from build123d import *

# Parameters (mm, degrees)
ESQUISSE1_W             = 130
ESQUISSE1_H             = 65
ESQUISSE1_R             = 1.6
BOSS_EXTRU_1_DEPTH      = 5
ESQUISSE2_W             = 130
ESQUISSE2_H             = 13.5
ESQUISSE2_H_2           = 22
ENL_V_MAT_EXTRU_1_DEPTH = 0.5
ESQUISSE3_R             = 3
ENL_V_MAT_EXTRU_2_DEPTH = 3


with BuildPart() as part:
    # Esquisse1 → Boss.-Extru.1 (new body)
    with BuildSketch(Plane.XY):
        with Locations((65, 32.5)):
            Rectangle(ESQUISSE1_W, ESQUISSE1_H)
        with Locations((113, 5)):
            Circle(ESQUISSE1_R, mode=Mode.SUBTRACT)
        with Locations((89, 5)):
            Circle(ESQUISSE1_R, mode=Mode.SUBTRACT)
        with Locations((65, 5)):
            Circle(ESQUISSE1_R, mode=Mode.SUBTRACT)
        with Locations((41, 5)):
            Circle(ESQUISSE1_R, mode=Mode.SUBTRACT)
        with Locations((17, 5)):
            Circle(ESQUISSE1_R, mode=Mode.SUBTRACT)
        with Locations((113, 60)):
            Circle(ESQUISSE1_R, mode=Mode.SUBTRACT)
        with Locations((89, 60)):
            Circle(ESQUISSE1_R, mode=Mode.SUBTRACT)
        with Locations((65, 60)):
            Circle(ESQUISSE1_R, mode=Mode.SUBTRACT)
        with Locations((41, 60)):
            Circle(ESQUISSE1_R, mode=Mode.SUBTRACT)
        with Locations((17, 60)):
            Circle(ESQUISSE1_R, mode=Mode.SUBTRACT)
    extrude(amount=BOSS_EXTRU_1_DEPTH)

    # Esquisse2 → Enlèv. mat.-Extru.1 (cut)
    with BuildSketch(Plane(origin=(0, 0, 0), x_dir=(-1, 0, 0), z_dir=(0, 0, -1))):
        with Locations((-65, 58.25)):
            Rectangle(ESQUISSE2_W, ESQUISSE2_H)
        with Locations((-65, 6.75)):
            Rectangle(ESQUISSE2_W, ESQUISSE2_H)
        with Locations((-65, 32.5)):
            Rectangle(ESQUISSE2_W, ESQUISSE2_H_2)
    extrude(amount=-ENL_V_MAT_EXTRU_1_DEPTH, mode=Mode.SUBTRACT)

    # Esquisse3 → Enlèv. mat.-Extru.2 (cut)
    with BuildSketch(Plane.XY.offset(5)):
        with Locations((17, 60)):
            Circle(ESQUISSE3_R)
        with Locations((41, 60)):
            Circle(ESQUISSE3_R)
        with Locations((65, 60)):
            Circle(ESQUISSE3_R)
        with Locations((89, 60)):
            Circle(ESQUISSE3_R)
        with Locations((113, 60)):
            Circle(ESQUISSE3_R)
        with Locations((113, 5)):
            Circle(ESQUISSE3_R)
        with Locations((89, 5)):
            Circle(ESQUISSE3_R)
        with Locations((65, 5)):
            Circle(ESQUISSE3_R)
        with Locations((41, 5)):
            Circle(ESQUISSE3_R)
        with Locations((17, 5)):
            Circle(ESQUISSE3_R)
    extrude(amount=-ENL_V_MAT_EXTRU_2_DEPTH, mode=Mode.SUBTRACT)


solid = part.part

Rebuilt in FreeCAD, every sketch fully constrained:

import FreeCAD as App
import Part
import Sketcher
Q = App.Units.Quantity


def add_polygon(sketch, points):
    """Adds a closed chain of lines whose ends are joined by coincident constraints."""
    first, n = sketch.GeometryCount, len(points)
    for a, b in zip(points, points[1:] + points[:1]):
        sketch.addGeometry(Part.LineSegment(App.Vector(*a, 0), App.Vector(*b, 0)), False)
    for i in range(n):
        sketch.addConstraint(Sketcher.Constraint("Coincident", first + i, 2, first + (i + 1) % n, 1))

doc = App.newDocument("Part")
body = doc.addObject("PartDesign::Body", "Body")

# Sketch on XY plane
sketch1 = body.newObject("Sketcher::SketchObject", "Sketch")
sketch1.AttachmentSupport = (doc.getObject("XY_Plane"), [""])
sketch1.MapMode = "FlatFace"
add_polygon(sketch1, [(0, 65), (0, 0), (130, 0), (130, 65)])  # lines 0-3
sketch1.addGeometry(Part.Circle(App.Vector(17, 5, 0), App.Vector(0, 0, 1), 1.6), False)  # 4
sketch1.addGeometry(Part.Circle(App.Vector(41, 5, 0), App.Vector(0, 0, 1), 1.6), False)  # 5
sketch1.addGeometry(Part.Circle(App.Vector(65, 5, 0), App.Vector(0, 0, 1), 1.6), False)  # 6
sketch1.addGeometry(Part.Circle(App.Vector(89, 5, 0), App.Vector(0, 0, 1), 1.6), False)  # 7
sketch1.addGeometry(Part.Circle(App.Vector(113, 5, 0), App.Vector(0, 0, 1), 1.6), False)  # 8
sketch1.addGeometry(Part.Circle(App.Vector(17, 60, 0), App.Vector(0, 0, 1), 1.6), False)  # 9
sketch1.addGeometry(Part.Circle(App.Vector(41, 60, 0), App.Vector(0, 0, 1), 1.6), False)  # 10
sketch1.addGeometry(Part.Circle(App.Vector(65, 60, 0), App.Vector(0, 0, 1), 1.6), False)  # 11
sketch1.addGeometry(Part.Circle(App.Vector(89, 60, 0), App.Vector(0, 0, 1), 1.6), False)  # 12
sketch1.addGeometry(Part.Circle(App.Vector(113, 60, 0), App.Vector(0, 0, 1), 1.6), False)  # 13
sketch1.addConstraint(Sketcher.Constraint("Vertical", 0))
sketch1.addConstraint(Sketcher.Constraint("Horizontal", 1))
sketch1.addConstraint(Sketcher.Constraint("Vertical", 2))
sketch1.addConstraint(Sketcher.Constraint("Horizontal", 3))
sketch1.addConstraint(Sketcher.Constraint("Coincident", 0, 2, -1, 1))
sketch1.addConstraint(Sketcher.Constraint("Equal", 4, 5))
sketch1.addConstraint(Sketcher.Constraint("Equal", 5, 6))
sketch1.addConstraint(Sketcher.Constraint("Equal", 6, 7))
sketch1.addConstraint(Sketcher.Constraint("Equal", 7, 8))
sketch1.addConstraint(Sketcher.Constraint("Equal", 8, 9))
sketch1.addConstraint(Sketcher.Constraint("Equal", 9, 10))
sketch1.addConstraint(Sketcher.Constraint("Equal", 10, 11))
sketch1.addConstraint(Sketcher.Constraint("Equal", 11, 12))
sketch1.addConstraint(Sketcher.Constraint("Equal", 12, 13))
sketch1.addConstraint(Sketcher.Constraint("Horizontal", 4, 3, 5, 3))
sketch1.addConstraint(Sketcher.Constraint("Horizontal", 5, 3, 6, 3))
sketch1.addConstraint(Sketcher.Constraint("Horizontal", 6, 3, 7, 3))
sketch1.addConstraint(Sketcher.Constraint("Horizontal", 7, 3, 8, 3))
sketch1.addConstraint(Sketcher.Constraint("Horizontal", 9, 3, 10, 3))
sketch1.addConstraint(Sketcher.Constraint("Horizontal", 10, 3, 11, 3))
sketch1.addConstraint(Sketcher.Constraint("Horizontal", 11, 3, 12, 3))
sketch1.addConstraint(Sketcher.Constraint("Horizontal", 12, 3, 13, 3))
sketch1.addConstraint(Sketcher.Constraint("Vertical", 4, 3, 9, 3))
sketch1.addConstraint(Sketcher.Constraint("Vertical", 5, 3, 10, 3))
sketch1.addConstraint(Sketcher.Constraint("Vertical", 6, 3, 11, 3))
sketch1.addConstraint(Sketcher.Constraint("Vertical", 7, 3, 12, 3))
sketch1.addConstraint(Sketcher.Constraint("Vertical", 8, 3, 13, 3))
sketch1.addConstraint(Sketcher.Constraint("Diameter", 4, Q("3.2 mm")))
sketch1.addConstraint(Sketcher.Constraint("DistanceX", 1, 1, 1, 2, Q("130 mm")))
sketch1.addConstraint(Sketcher.Constraint("DistanceY", 0, 2, 0, 1, Q("65 mm")))
sketch1.addConstraint(Sketcher.Constraint("DistanceX", -1, 1, 4, 3, Q("17 mm")))
sketch1.addConstraint(Sketcher.Constraint("DistanceY", -1, 1, 4, 3, Q("5 mm")))
sketch1.addConstraint(Sketcher.Constraint("DistanceX", -1, 1, 5, 3, Q("41 mm")))
sketch1.addConstraint(Sketcher.Constraint("DistanceX", -1, 1, 6, 3, Q("65 mm")))
sketch1.addConstraint(Sketcher.Constraint("DistanceX", -1, 1, 7, 3, Q("89 mm")))
sketch1.addConstraint(Sketcher.Constraint("DistanceX", -1, 1, 8, 3, Q("113 mm")))
sketch1.addConstraint(Sketcher.Constraint("DistanceY", -1, 1, 9, 3, Q("60 mm")))
pad1 = body.newObject("PartDesign::Pad", "Pad")
pad1.Profile = sketch1
pad1.Length = 5

# Sketch on XY plane
sketch2 = body.newObject("Sketcher::SketchObject", "Sketch001")
sketch2.AttachmentSupport = (doc.getObject("XY_Plane"), [""])
sketch2.MapMode = "FlatFace"
add_polygon(sketch2, [(130, 65), (130, 52), (0, 52), (0, 65)])  # lines 0-3
add_polygon(sketch2, [(130, 14), (130, 0), (0, 0), (0, 14)])  # lines 4-7
add_polygon(sketch2, [(130, 44), (130, 22), (0, 22), (0, 44)])  # lines 8-11
sketch2.addConstraint(Sketcher.Constraint("Vertical", 0))
sketch2.addConstraint(Sketcher.Constraint("Horizontal", 1))
sketch2.addConstraint(Sketcher.Constraint("Vertical", 2))
sketch2.addConstraint(Sketcher.Constraint("Horizontal", 3))
sketch2.addConstraint(Sketcher.Constraint("Vertical", 4))
sketch2.addConstraint(Sketcher.Constraint("Horizontal", 5))
sketch2.addConstraint(Sketcher.Constraint("Vertical", 6))
sketch2.addConstraint(Sketcher.Constraint("Horizontal", 7))
sketch2.addConstraint(Sketcher.Constraint("Vertical", 8))
sketch2.addConstraint(Sketcher.Constraint("Horizontal", 9))
sketch2.addConstraint(Sketcher.Constraint("Vertical", 10))
sketch2.addConstraint(Sketcher.Constraint("Horizontal", 11))
sketch2.addConstraint(Sketcher.Constraint("Coincident", 5, 2, -1, 1))
sketch2.addConstraint(Sketcher.Constraint("PointOnObject", 1, 2, -2))
sketch2.addConstraint(Sketcher.Constraint("PointOnObject", 9, 2, -2))
sketch2.addConstraint(Sketcher.Constraint("Vertical", 3, 2, 4, 2))
sketch2.addConstraint(Sketcher.Constraint("Vertical", 7, 2, 8, 2))
sketch2.addConstraint(Sketcher.Constraint("Equal", 2, 4))
sketch2.addConstraint(Sketcher.Constraint("DistanceX", 1, 2, 1, 1, Q("130 mm")))
sketch2.addConstraint(Sketcher.Constraint("DistanceY", 8, 2, 8, 1, Q("22 mm")))
sketch2.addConstraint(Sketcher.Constraint("DistanceY", 0, 2, 0, 1, Q("13.5 mm")))
sketch2.addConstraint(Sketcher.Constraint("DistanceY", -1, 1, 2, 2, Q("65 mm")))
sketch2.addConstraint(Sketcher.Constraint("DistanceY", 7, 2, 8, 2, Q("8 mm")))
pocket1 = body.newObject("PartDesign::Pocket", "Pocket")
pocket1.Profile = sketch2
pocket1.Length = 0.5
pocket1.Reversed = True

# Sketch on XY plane
sketch3 = body.newObject("Sketcher::SketchObject", "Sketch002")
sketch3.AttachmentSupport = (doc.getObject("XY_Plane"), [""])
sketch3.MapMode = "FlatFace"
sketch3.AttachmentOffset = App.Placement(App.Vector(0, 0, 5), App.Rotation())
sketch3.addGeometry(Part.Circle(App.Vector(17, 60, 0), App.Vector(0, 0, 1), 3), False)
sketch3.addGeometry(Part.Circle(App.Vector(41, 60, 0), App.Vector(0, 0, 1), 3), False)
sketch3.addGeometry(Part.Circle(App.Vector(65, 60, 0), App.Vector(0, 0, 1), 3), False)
sketch3.addGeometry(Part.Circle(App.Vector(89, 60, 0), App.Vector(0, 0, 1), 3), False)
sketch3.addGeometry(Part.Circle(App.Vector(113, 60, 0), App.Vector(0, 0, 1), 3), False)
sketch3.addGeometry(Part.Circle(App.Vector(113, 5, 0), App.Vector(0, 0, 1), 3), False)
sketch3.addGeometry(Part.Circle(App.Vector(89, 5, 0), App.Vector(0, 0, 1), 3), False)
sketch3.addGeometry(Part.Circle(App.Vector(65, 5, 0), App.Vector(0, 0, 1), 3), False)
sketch3.addGeometry(Part.Circle(App.Vector(41, 5, 0), App.Vector(0, 0, 1), 3), False)
sketch3.addGeometry(Part.Circle(App.Vector(17, 5, 0), App.Vector(0, 0, 1), 3), False)
sketch3.addConstraint(Sketcher.Constraint("Equal", 0, 1))
sketch3.addConstraint(Sketcher.Constraint("Equal", 1, 2))
sketch3.addConstraint(Sketcher.Constraint("Equal", 2, 3))
sketch3.addConstraint(Sketcher.Constraint("Equal", 3, 4))
sketch3.addConstraint(Sketcher.Constraint("Equal", 4, 5))
sketch3.addConstraint(Sketcher.Constraint("Equal", 5, 6))
sketch3.addConstraint(Sketcher.Constraint("Equal", 6, 7))
sketch3.addConstraint(Sketcher.Constraint("Equal", 7, 8))
sketch3.addConstraint(Sketcher.Constraint("Equal", 8, 9))
sketch3.addConstraint(Sketcher.Constraint("Horizontal", 0, 3, 1, 3))
sketch3.addConstraint(Sketcher.Constraint("Horizontal", 1, 3, 2, 3))
sketch3.addConstraint(Sketcher.Constraint("Horizontal", 2, 3, 3, 3))
sketch3.addConstraint(Sketcher.Constraint("Horizontal", 3, 3, 4, 3))
sketch3.addConstraint(Sketcher.Constraint("Horizontal", 5, 3, 6, 3))
sketch3.addConstraint(Sketcher.Constraint("Horizontal", 6, 3, 7, 3))
sketch3.addConstraint(Sketcher.Constraint("Horizontal", 7, 3, 8, 3))
sketch3.addConstraint(Sketcher.Constraint("Horizontal", 8, 3, 9, 3))
sketch3.addConstraint(Sketcher.Constraint("Vertical", 4, 3, 5, 3))
sketch3.addConstraint(Sketcher.Constraint("Vertical", 3, 3, 6, 3))
sketch3.addConstraint(Sketcher.Constraint("Vertical", 2, 3, 7, 3))
sketch3.addConstraint(Sketcher.Constraint("Vertical", 1, 3, 8, 3))
sketch3.addConstraint(Sketcher.Constraint("Vertical", 0, 3, 9, 3))
sketch3.addConstraint(Sketcher.Constraint("Diameter", 0, Q("6 mm")))
sketch3.addConstraint(Sketcher.Constraint("DistanceX", -1, 1, 0, 3, Q("17 mm")))
sketch3.addConstraint(Sketcher.Constraint("DistanceY", -1, 1, 0, 3, Q("60 mm")))
sketch3.addConstraint(Sketcher.Constraint("DistanceX", -1, 1, 1, 3, Q("41 mm")))
sketch3.addConstraint(Sketcher.Constraint("DistanceX", -1, 1, 2, 3, Q("65 mm")))
sketch3.addConstraint(Sketcher.Constraint("DistanceX", -1, 1, 3, 3, Q("89 mm")))
sketch3.addConstraint(Sketcher.Constraint("DistanceX", -1, 1, 4, 3, Q("113 mm")))
sketch3.addConstraint(Sketcher.Constraint("DistanceY", -1, 1, 5, 3, Q("5 mm")))
pocket2 = body.newObject("PartDesign::Pocket", "Pocket001")
pocket2.Profile = sketch3
pocket2.Length = 3

doc.recompute()
